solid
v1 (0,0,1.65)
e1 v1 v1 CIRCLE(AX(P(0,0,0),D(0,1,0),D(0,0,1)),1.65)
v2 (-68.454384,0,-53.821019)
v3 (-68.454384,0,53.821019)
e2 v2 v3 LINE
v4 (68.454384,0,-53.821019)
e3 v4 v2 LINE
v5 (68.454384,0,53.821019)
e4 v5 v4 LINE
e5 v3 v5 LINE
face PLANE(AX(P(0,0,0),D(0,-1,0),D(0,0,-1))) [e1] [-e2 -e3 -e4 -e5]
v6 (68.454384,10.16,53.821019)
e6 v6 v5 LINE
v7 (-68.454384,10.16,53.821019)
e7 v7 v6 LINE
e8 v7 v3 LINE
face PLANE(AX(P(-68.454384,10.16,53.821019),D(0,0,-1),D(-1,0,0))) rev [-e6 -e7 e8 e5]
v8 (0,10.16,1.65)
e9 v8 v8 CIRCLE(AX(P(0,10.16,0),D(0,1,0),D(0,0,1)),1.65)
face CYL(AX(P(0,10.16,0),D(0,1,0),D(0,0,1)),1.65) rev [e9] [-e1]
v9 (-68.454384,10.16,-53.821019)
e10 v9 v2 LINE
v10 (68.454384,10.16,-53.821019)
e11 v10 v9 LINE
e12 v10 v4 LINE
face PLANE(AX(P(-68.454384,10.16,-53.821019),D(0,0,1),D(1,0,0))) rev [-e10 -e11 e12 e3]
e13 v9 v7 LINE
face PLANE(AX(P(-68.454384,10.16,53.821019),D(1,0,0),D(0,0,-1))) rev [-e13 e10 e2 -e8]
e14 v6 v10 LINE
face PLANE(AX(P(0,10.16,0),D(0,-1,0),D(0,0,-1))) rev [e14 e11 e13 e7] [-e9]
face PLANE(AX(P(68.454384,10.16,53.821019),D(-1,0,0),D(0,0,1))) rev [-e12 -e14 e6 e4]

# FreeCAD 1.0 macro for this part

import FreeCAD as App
import Part
import Sketcher
from FreeCAD import Vector
Q = App.Units.Quantity


def add_polygon(sketch, points):
    """Adds a closed chain of lines whose ends are joined by coincident constraints."""
    first, n = sketch.GeometryCount, len(points)
    for a, b in zip(points, points[1:] + points[:1]):
        sketch.addGeometry(Part.LineSegment(App.Vector(*a, 0), App.Vector(*b, 0)), False)
    for i in range(n):
        sketch.addConstraint(Sketcher.Constraint("Coincident", first + i, 2, first + (i + 1) % n, 1))

doc = App.newDocument("Part")
body = doc.addObject("PartDesign::Body", "Body")

sketch1 = doc.addObject("Sketcher::SketchObject", "Sketch")
body.addObject(sketch1)
sketch1.AttachmentSupport = (doc.XZ_Plane, [""])
sketch1.MapMode = "FlatFace"
add_polygon(sketch1, [(-68.454384, -53.821019), (-68.454384, 53.821019), (68.454384, 53.821019), (68.454384, -53.821019)])
sketch1.addConstraint([
    Sketcher.Constraint("Vertical", 0),
    Sketcher.Constraint("Horizontal", 1),
    Sketcher.Constraint("Vertical", 2),
    Sketcher.Constraint("Horizontal", 3),
    Sketcher.Constraint("Symmetric", 0, 2, 2, 2, -1, 1),
    Sketcher.Constraint("DistanceX", 1, 1, 1, 2, Q("136.908767 mm")),
    Sketcher.Constraint("DistanceY", 0, 1, 0, 2, Q("107.642038 mm")),
])
pad1 = doc.addObject("PartDesign::Pad", "Pad")
body.addObject(pad1)
pad1.Profile = sketch1
pad1.Length = 10.16
pad1.Reversed = True

sketch2 = doc.addObject("Sketcher::SketchObject", "Sketch001")
body.addObject(sketch2)
sketch2.AttachmentSupport = (doc.XZ_Plane, [""])
sketch2.MapMode = "FlatFace"
sketch2.AttachmentOffset = App.Placement(Vector(0, 0, -10.16), App.Rotation())
sketch2.addGeometry(Part.Circle(Vector(0, 0, 0), Vector(0, 0, 1), 1.65), False)
sketch2.addConstraint([
    Sketcher.Constraint("Coincident", 0, 3, -1, 1),
    Sketcher.Constraint("Diameter", 0, Q("3.3 mm")),
])
doc.recompute()
hole = doc.addObject("PartDesign::Hole", "Hole")
body.addObject(hole)
hole.Profile = sketch2
hole.ThreadType = "None"
hole.Diameter = 3.3
hole.DepthType = "ThroughAll"
hole.Reversed = True

doc.recompute()
